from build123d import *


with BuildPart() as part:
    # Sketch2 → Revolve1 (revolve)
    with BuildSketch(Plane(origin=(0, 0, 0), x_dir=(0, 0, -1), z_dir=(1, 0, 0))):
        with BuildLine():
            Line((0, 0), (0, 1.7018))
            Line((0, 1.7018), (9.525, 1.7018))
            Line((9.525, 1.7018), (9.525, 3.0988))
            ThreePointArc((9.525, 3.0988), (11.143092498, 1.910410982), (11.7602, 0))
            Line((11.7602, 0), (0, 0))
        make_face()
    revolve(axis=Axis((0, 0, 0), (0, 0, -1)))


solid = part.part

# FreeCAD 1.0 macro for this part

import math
import FreeCAD as App
import Part
import Sketcher

V = App.Vector
Q = App.Units.Quantity

doc = App.newDocument("Part")
body = doc.addObject("PartDesign::Body", "Body")

# Sketch on YZ plane
sketch1 = body.newObject("Sketcher::SketchObject", "Sketch")
sketch1.AttachmentSupport = (doc.getObject("YZ_Plane"), [""])
sketch1.MapMode = "FlatFace"
sketch1.addGeometry([
    Part.LineSegment(V(1.7018, 0, 0), V(0, 0, 0)),  # 0
    Part.LineSegment(V(0, 0, 0), V(0, -11.7602, 0)),  # 1
    Part.ArcOfCircle(Part.Circle(V(0, -8.494568, 0), V(0, 0, 1), 3.265632), math.radians(-90), math.radians(-18.393312)),  # 2
    Part.LineSegment(V(3.0988, -9.525, 0), V(1.7018, -9.525, 0)),  # 3
    Part.LineSegment(V(1.7018, -9.525, 0), V(1.7018, 0, 0)),  # 4
], False)
sketch1.addConstraint([
    Sketcher.Constraint("Coincident", 0, 2, 1, 1),
    Sketcher.Constraint("Coincident", 1, 2, 2, 1),
    Sketcher.Constraint("Coincident", 2, 2, 3, 1),
    Sketcher.Constraint("Coincident", 3, 2, 4, 1),
    Sketcher.Constraint("Coincident", 4, 2, 0, 1),
    Sketcher.Constraint("Horizontal", 0),
    Sketcher.Constraint("Vertical", 1),
    Sketcher.Constraint("Horizontal", 3),
    Sketcher.Constraint("Vertical", 4),
    Sketcher.Constraint("Coincident", 0, 2, -1, 1),
    Sketcher.Constraint("PointOnObject", 2, 3, -2),
    Sketcher.Constraint("DistanceX", 0, 2, 0, 1, Q("0.067 in")),
    Sketcher.Constraint("DistanceX", 3, 2, 3, 1, Q("0.055 in")),
    Sketcher.Constraint("DistanceY", 1, 2, 1, 1, Q("0.463 in")),
    Sketcher.Constraint("DistanceY", 4, 1, 4, 2, Q("0.375 in")),
])
revolution = body.newObject("PartDesign::Revolution", "Revolution")
revolution.Profile = sketch1
revolution.ReferenceAxis = (sketch1, ["V_Axis"])
revolution.Angle = 360

doc.recompute()
